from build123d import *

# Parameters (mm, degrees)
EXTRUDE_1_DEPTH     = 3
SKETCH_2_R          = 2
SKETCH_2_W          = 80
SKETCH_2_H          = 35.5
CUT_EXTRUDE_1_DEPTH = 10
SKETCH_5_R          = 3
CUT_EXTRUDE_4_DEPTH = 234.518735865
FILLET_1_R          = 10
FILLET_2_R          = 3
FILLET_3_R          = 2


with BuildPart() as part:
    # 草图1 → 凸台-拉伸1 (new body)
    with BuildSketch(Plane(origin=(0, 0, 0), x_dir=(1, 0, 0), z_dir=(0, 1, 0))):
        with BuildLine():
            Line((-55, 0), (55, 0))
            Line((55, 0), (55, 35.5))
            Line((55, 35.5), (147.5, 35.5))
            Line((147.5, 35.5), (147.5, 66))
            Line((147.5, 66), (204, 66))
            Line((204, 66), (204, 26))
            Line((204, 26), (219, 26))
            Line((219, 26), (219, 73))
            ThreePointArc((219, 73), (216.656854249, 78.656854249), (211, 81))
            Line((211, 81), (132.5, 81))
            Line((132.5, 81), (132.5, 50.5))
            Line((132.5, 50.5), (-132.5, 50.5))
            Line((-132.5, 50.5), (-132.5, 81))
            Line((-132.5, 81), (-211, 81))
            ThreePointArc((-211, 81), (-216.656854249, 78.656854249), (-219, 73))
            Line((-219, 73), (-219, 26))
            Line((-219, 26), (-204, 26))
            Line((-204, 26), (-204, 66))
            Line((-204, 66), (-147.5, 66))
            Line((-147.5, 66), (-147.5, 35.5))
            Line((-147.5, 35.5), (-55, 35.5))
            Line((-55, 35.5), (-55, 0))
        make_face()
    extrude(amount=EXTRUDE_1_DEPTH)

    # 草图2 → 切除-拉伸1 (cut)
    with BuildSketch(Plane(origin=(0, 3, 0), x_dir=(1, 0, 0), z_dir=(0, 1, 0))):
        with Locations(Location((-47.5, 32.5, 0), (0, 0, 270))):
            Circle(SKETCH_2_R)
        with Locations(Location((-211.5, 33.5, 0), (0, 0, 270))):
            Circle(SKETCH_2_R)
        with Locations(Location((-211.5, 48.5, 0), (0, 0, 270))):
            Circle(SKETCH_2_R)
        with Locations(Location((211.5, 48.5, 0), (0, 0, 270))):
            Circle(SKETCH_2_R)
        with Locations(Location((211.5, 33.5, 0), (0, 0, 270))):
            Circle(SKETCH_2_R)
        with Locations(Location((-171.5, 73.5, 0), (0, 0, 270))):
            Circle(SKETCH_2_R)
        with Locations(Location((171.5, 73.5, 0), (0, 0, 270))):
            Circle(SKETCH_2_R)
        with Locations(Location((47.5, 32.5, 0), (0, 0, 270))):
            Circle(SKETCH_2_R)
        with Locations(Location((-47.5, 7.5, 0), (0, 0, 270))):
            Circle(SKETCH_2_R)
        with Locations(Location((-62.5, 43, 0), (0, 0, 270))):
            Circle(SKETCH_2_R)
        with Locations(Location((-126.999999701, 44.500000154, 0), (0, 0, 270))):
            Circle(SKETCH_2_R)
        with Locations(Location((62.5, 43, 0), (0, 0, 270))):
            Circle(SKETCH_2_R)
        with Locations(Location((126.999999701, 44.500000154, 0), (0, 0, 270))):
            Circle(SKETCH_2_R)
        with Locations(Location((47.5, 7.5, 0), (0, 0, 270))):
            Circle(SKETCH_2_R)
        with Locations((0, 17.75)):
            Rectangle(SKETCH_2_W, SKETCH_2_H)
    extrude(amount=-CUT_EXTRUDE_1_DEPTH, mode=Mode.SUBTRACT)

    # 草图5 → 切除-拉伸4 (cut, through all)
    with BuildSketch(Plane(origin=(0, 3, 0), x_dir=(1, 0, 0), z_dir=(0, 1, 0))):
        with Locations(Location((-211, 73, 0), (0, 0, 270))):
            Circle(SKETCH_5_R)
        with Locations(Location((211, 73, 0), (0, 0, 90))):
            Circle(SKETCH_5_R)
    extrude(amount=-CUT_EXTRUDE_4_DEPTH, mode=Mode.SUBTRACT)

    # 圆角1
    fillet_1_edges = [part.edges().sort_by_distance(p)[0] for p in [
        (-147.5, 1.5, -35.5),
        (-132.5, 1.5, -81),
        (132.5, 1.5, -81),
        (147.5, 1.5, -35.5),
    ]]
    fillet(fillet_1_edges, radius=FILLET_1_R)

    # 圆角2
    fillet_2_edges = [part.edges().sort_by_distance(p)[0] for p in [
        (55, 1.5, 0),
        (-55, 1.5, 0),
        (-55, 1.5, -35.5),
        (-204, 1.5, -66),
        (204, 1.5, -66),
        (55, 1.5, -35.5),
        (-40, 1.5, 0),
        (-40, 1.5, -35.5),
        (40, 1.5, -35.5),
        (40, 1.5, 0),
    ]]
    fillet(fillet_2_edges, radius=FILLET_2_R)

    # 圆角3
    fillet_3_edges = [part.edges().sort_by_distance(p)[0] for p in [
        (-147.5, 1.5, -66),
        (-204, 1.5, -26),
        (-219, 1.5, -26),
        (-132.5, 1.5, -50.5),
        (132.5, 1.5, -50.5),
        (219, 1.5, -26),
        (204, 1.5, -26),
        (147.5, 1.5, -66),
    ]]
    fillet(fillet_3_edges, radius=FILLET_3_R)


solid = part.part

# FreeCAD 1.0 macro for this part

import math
import FreeCAD as App
import Part
import Sketcher

V = App.Vector


def edges_at(feature, points):
    """Names of the edges that pass closest to the given points."""
    edges = feature.Shape.Edges
    near = lambda p: min(range(len(edges)), key=lambda i: edges[i].distToShape(Part.Vertex(*p))[0])
    return sorted({f"Edge{near(p) + 1}" for p in points})

doc = App.newDocument("Part")
body = doc.addObject("PartDesign::Body", "Body")

sketch1 = body.newObject("Sketcher::SketchObject", "Sketch")
sketch1.AttachmentSupport = (doc.getObject("XZ_Plane"), [""])
sketch1.MapMode = "FlatFace"
sketch1.addGeometry([
    Part.LineSegment(V(-55, 0, 0), V(55, 0, 0)),
    Part.LineSegment(V(55, 0, 0), V(55, -35.5, 0)),
    Part.LineSegment(V(55, -35.5, 0), V(147.5, -35.5, 0)),
    Part.LineSegment(V(147.5, -35.5, 0), V(147.5, -66, 0)),
    Part.LineSegment(V(147.5, -66, 0), V(204, -66, 0)),
    Part.LineSegment(V(204, -66, 0), V(204, -26, 0)),
    Part.LineSegment(V(204, -26, 0), V(219, -26, 0)),
    Part.LineSegment(V(219, -26, 0), V(219, -73, 0)),
    Part.ArcOfCircle(Part.Circle(V(211, -73, 0), V(0, 0, 1), 8), math.radians(-90), math.radians(0)),
    Part.LineSegment(V(211, -81, 0), V(132.5, -81, 0)),
    Part.LineSegment(V(132.5, -81, 0), V(132.5, -50.5, 0)),
    Part.LineSegment(V(132.5, -50.5, 0), V(-132.5, -50.5, 0)),
    Part.LineSegment(V(-132.5, -50.5, 0), V(-132.5, -81, 0)),
    Part.LineSegment(V(-132.5, -81, 0), V(-211, -81, 0)),
    Part.ArcOfCircle(Part.Circle(V(-211, -73, 0), V(0, 0, 1), 8), math.radians(-180), math.radians(-90)),
    Part.LineSegment(V(-219, -73, 0), V(-219, -26, 0)),
    Part.LineSegment(V(-219, -26, 0), V(-204, -26, 0)),
    Part.LineSegment(V(-204, -26, 0), V(-204, -66, 0)),
    Part.LineSegment(V(-204, -66, 0), V(-147.5, -66, 0)),
    Part.LineSegment(V(-147.5, -66, 0), V(-147.5, -35.5, 0)),
    Part.LineSegment(V(-147.5, -35.5, 0), V(-55, -35.5, 0)),
    Part.LineSegment(V(-55, -35.5, 0), V(-55, 0, 0)),
], False)
sketch1.addConstraint([
    Sketcher.Constraint("Coincident", 0, 2, 1, 1),
    Sketcher.Constraint("Coincident", 1, 2, 2, 1),
    Sketcher.Constraint("Coincident", 2, 2, 3, 1),
    Sketcher.Constraint("Coincident", 3, 2, 4, 1),
    Sketcher.Constraint("Coincident", 4, 2, 5, 1),
    Sketcher.Constraint("Coincident", 5, 2, 6, 1),
    Sketcher.Constraint("Coincident", 6, 2, 7, 1),
    Sketcher.Constraint("Tangent", 7, 2, 8, 2),
    Sketcher.Constraint("Tangent", 8, 1, 9, 1),
    Sketcher.Constraint("Coincident", 9, 2, 10, 1),
    Sketcher.Constraint("Coincident", 10, 2, 11, 1),
    Sketcher.Constraint("Coincident", 11, 2, 12, 1),
    Sketcher.Constraint("Coincident", 12, 2, 13, 1),
    Sketcher.Constraint("Tangent", 13, 2, 14, 2),
    Sketcher.Constraint("Tangent", 14, 1, 15, 1),
    Sketcher.Constraint("Coincident", 15, 2, 16, 1),
    Sketcher.Constraint("Coincident", 16, 2, 17, 1),
    Sketcher.Constraint("Coincident", 17, 2, 18, 1),
    Sketcher.Constraint("Coincident", 18, 2, 19, 1),
    Sketcher.Constraint("Coincident", 19, 2, 20, 1),
    Sketcher.Constraint("Coincident", 20, 2, 21, 1),
    Sketcher.Constraint("Coincident", 21, 2, 0, 1),
    Sketcher.Constraint("Horizontal", 0),
    Sketcher.Constraint("Vertical", 1),
    Sketcher.Constraint("Horizontal", 2),
    Sketcher.Constraint("Vertical", 3),
    Sketcher.Constraint("Horizontal", 4),
    Sketcher.Constraint("Vertical", 5),
    Sketcher.Constraint("Horizontal", 6),
    Sketcher.Constraint("Vertical", 7),
    Sketcher.Constraint("Horizontal", 9),
    Sketcher.Constraint("Vertical", 10),
    Sketcher.Constraint("Horizontal", 11),
    Sketcher.Constraint("Vertical", 12),
    Sketcher.Constraint("Horizontal", 13),
    Sketcher.Constraint("Vertical", 15),
    Sketcher.Constraint("Horizontal", 16),
    Sketcher.Constraint("Vertical", 17),
    Sketcher.Constraint("Horizontal", 18),
    Sketcher.Constraint("Vertical", 19),
    Sketcher.Constraint("Horizontal", 20),
    Sketcher.Constraint("Vertical", 21),
    Sketcher.Constraint("Equal", 8, 14),
    Sketcher.Constraint("Symmetric", 0, 2, 21, 2, -1, 1),
    Sketcher.Constraint("Symmetric", 8, 3, 14, 3, -2),
    Sketcher.Constraint("Symmetric", 5, 2, 16, 2, -2),
    Sketcher.Constraint("Symmetric", 3, 2, 18, 2, -2),
    Sketcher.Constraint("Horizontal", 2, 2, 19, 2),
    Sketcher.Constraint("Equal", 9, 13),
    Sketcher.Constraint("Equal", 3, 10),
    Sketcher.Constraint("Radius", 8, 8.0),
    Sketcher.Constraint("DistanceX", 0, 1, 0, 2, 110.0),
    Sketcher.Constraint("DistanceX", 6, 1, 6, 2, 15.0),
    Sketcher.Constraint("DistanceX", 11, 2, 11, 1, 265.0),
    Sketcher.Constraint("DistanceY", 5, 1, 5, 2, 40.0),
    Sketcher.Constraint("DistanceY", 7, 2, 7, 1, 47.0),
    Sketcher.Constraint("DistanceX", 2, 1, 2, 2, 92.5),
    Sketcher.Constraint("DistanceX", 4, 1, 4, 2, 56.5),
    Sketcher.Constraint("DistanceY", 1, 2, 1, 1, 35.5),
    Sketcher.Constraint("DistanceY", 3, 2, 3, 1, 30.5),
])
pad1 = body.newObject("PartDesign::Pad", "Pad")
pad1.Profile = sketch1
pad1.Length = 3
pad1.Reversed = True

sketch2 = body.newObject("Sketcher::SketchObject", "Sketch001")
sketch2.AttachmentSupport = (doc.getObject("XZ_Plane"), [""])
sketch2.MapMode = "FlatFace"
sketch2.AttachmentOffset = App.Placement(V(0, 0, -3), App.Rotation())
sketch2.addGeometry([
    Part.Circle(V(-47.5, -32.5, 0), V(0, 0, 1), 2),
    Part.Circle(V(-211.5, -33.5, 0), V(0, 0, 1), 2),
    Part.Circle(V(-211.5, -48.5, 0), V(0, 0, 1), 2),
    Part.Circle(V(211.5, -48.5, 0), V(0, 0, 1), 2),
    Part.Circle(V(211.5, -33.5, 0), V(0, 0, 1), 2),
    Part.Circle(V(-171.5, -73.5, 0), V(0, 0, 1), 2),
    Part.Circle(V(171.5, -73.5, 0), V(0, 0, 1), 2),
    Part.Circle(V(47.5, -32.5, 0), V(0, 0, 1), 2),
    Part.Circle(V(-47.5, -7.5, 0), V(0, 0, 1), 2),
    Part.Circle(V(-62.5, -43, 0), V(0, 0, 1), 2),
    Part.Circle(V(-127, -44.5, 0), V(0, 0, 1), 2),
    Part.Circle(V(62.5, -43, 0), V(0, 0, 1), 2),
    Part.Circle(V(127, -44.5, 0), V(0, 0, 1), 2),
    Part.Circle(V(47.5, -7.5, 0), V(0, 0, 1), 2),
    Part.LineSegment(V(-40, -35.5, 0), V(-40, 0, 0)),
    Part.LineSegment(V(-40, 0, 0), V(40, 0, 0)),
    Part.LineSegment(V(40, 0, 0), V(40, -35.5, 0)),
    Part.LineSegment(V(40, -35.5, 0), V(-40, -35.5, 0)),
], False)
sketch2.addConstraint([
    Sketcher.Constraint("Coincident", 14, 2, 15, 1),
    Sketcher.Constraint("Coincident", 15, 2, 16, 1),
    Sketcher.Constraint("Coincident", 16, 2, 17, 1),
    Sketcher.Constraint("Coincident", 17, 2, 14, 1),
    Sketcher.Constraint("Vertical", 14),
    Sketcher.Constraint("Horizontal", 15),
    Sketcher.Constraint("Vertical", 16),
    Sketcher.Constraint("Horizontal", 17),
    Sketcher.Constraint("Equal", 0, 1),
    Sketcher.Constraint("Equal", 1, 2),
    Sketcher.Constraint("Equal", 2, 3),
    Sketcher.Constraint("Equal", 3, 4),
    Sketcher.Constraint("Equal", 4, 5),
    Sketcher.Constraint("Equal", 5, 6),
    Sketcher.Constraint("Equal", 6, 7),
    Sketcher.Constraint("Equal", 7, 8),
    Sketcher.Constraint("Equal", 8, 9),
    Sketcher.Constraint("Equal", 9, 10),
    Sketcher.Constraint("Equal", 10, 11),
    Sketcher.Constraint("Equal", 11, 12),
    Sketcher.Constraint("Equal", 12, 13),
    Sketcher.Constraint("Symmetric", 14, 2, 15, 2, -1, 1),
    Sketcher.Constraint("Symmetric", 2, 3, 3, 3, -2),
    Sketcher.Constraint("Symmetric", 1, 3, 4, 3, -2),
    Sketcher.Constraint("Symmetric", 5, 3, 6, 3, -2),
    Sketcher.Constraint("Symmetric", 0, 3, 7, 3, -2),
    Sketcher.Constraint("Symmetric", 9, 3, 11, 3, -2),
    Sketcher.Constraint("Symmetric", 10, 3, 12, 3, -2),
    Sketcher.Constraint("Symmetric", 8, 3, 13, 3, -2),
    Sketcher.Constraint("Vertical", 1, 3, 2, 3),
    Sketcher.Constraint("Vertical", 0, 3, 8, 3),
    Sketcher.Constraint("Diameter", 0, 4.0),
    Sketcher.Constraint("DistanceX", 15, 1, 15, 2, 80.0),
    Sketcher.Constraint("DistanceY", 14, 1, 14, 2, 35.5),
    Sketcher.Constraint("DistanceY", 9, 3, -1, 1, 43.0),
    Sketcher.Constraint("DistanceX", 10, 3, -1, 1, 127.0),
    Sketcher.Constraint("DistanceX", 1, 3, 0, 3, 164.0),
    Sketcher.Constraint("DistanceY", 1, 3, 0, 3, 1.0),
    Sketcher.Constraint("DistanceY", 2, 3, 1, 3, 15.0),
    Sketcher.Constraint("DistanceX", 0, 3, 3, 3, 259.0),
    Sketcher.Constraint("DistanceX", 2, 3, 5, 3, 40.0),
    Sketcher.Constraint("DistanceY", 5, 3, 2, 3, 25.0),
    Sketcher.Constraint("DistanceY", 0, 3, 8, 3, 25.0),
    Sketcher.Constraint("DistanceX", 9, 3, 0, 3, 15.0),
    Sketcher.Constraint("DistanceY", 5, 3, 10, 3, 29.0),
    Sketcher.Constraint("DistanceY", 16, 2, 7, 3, 3.0),
])
pocket1 = body.newObject("PartDesign::Pocket", "Pocket")
pocket1.Profile = sketch2
pocket1.Length = 10
pocket1.Reversed = True

sketch3 = body.newObject("Sketcher::SketchObject", "Sketch002")
sketch3.AttachmentSupport = (doc.getObject("XZ_Plane"), [""])
sketch3.MapMode = "FlatFace"
sketch3.AttachmentOffset = App.Placement(V(0, 0, -3), App.Rotation())
sketch3.addGeometry([
    Part.Circle(V(-211, -73, 0), V(0, 0, 1), 3),
    Part.Circle(V(211, -73, 0), V(0, 0, 1), 3),
], False)
sketch3.addConstraint([
    Sketcher.Constraint("Equal", 0, 1),
    Sketcher.Constraint("Symmetric", 0, 3, 1, 3, -2),
    Sketcher.Constraint("Diameter", 0, 6.0),
    Sketcher.Constraint("DistanceX", 0, 3, -1, 1, 211.0),
    Sketcher.Constraint("DistanceY", 0, 3, -1, 1, 73.0),
])
pocket2 = body.newObject("PartDesign::Pocket", "Pocket001")
pocket2.Profile = sketch3
pocket2.Type = "ThroughAll"
pocket2.Reversed = True
doc.recompute()

fillet = body.newObject("PartDesign::Fillet", "Fillet")
fillet.Base = (pocket2, edges_at(pocket2, [
    (-147.5, 1.5, -35.5),
    (-132.5, 1.5, -81),
    (132.5, 1.5, -81),
    (147.5, 1.5, -35.5),
]))
fillet.Radius = 10
doc.recompute()

fillet2 = body.newObject("PartDesign::Fillet", "Fillet001")
fillet2.Base = (fillet, edges_at(fillet, [
    (55, 1.5, 0),
    (-55, 1.5, 0),
    (-55, 1.5, -35.5),
    (-204, 1.5, -66),
    (204, 1.5, -66),
    (55, 1.5, -35.5),
    (-40, 1.5, 0),
    (-40, 1.5, -35.5),
    (40, 1.5, -35.5),
    (40, 1.5, 0),
]))
fillet2.Radius = 3
doc.recompute()

fillet3 = body.newObject("PartDesign::Fillet", "Fillet002")
fillet3.Base = (fillet2, edges_at(fillet2, [
    (-147.5, 1.5, -66),
    (-204, 1.5, -26),
    (-219, 1.5, -26),
    (-132.5, 1.5, -50.5),
    (132.5, 1.5, -50.5),
    (219, 1.5, -26),
    (204, 1.5, -26),
    (147.5, 1.5, -66),
]))
fillet3.Radius = 2

doc.recompute()
